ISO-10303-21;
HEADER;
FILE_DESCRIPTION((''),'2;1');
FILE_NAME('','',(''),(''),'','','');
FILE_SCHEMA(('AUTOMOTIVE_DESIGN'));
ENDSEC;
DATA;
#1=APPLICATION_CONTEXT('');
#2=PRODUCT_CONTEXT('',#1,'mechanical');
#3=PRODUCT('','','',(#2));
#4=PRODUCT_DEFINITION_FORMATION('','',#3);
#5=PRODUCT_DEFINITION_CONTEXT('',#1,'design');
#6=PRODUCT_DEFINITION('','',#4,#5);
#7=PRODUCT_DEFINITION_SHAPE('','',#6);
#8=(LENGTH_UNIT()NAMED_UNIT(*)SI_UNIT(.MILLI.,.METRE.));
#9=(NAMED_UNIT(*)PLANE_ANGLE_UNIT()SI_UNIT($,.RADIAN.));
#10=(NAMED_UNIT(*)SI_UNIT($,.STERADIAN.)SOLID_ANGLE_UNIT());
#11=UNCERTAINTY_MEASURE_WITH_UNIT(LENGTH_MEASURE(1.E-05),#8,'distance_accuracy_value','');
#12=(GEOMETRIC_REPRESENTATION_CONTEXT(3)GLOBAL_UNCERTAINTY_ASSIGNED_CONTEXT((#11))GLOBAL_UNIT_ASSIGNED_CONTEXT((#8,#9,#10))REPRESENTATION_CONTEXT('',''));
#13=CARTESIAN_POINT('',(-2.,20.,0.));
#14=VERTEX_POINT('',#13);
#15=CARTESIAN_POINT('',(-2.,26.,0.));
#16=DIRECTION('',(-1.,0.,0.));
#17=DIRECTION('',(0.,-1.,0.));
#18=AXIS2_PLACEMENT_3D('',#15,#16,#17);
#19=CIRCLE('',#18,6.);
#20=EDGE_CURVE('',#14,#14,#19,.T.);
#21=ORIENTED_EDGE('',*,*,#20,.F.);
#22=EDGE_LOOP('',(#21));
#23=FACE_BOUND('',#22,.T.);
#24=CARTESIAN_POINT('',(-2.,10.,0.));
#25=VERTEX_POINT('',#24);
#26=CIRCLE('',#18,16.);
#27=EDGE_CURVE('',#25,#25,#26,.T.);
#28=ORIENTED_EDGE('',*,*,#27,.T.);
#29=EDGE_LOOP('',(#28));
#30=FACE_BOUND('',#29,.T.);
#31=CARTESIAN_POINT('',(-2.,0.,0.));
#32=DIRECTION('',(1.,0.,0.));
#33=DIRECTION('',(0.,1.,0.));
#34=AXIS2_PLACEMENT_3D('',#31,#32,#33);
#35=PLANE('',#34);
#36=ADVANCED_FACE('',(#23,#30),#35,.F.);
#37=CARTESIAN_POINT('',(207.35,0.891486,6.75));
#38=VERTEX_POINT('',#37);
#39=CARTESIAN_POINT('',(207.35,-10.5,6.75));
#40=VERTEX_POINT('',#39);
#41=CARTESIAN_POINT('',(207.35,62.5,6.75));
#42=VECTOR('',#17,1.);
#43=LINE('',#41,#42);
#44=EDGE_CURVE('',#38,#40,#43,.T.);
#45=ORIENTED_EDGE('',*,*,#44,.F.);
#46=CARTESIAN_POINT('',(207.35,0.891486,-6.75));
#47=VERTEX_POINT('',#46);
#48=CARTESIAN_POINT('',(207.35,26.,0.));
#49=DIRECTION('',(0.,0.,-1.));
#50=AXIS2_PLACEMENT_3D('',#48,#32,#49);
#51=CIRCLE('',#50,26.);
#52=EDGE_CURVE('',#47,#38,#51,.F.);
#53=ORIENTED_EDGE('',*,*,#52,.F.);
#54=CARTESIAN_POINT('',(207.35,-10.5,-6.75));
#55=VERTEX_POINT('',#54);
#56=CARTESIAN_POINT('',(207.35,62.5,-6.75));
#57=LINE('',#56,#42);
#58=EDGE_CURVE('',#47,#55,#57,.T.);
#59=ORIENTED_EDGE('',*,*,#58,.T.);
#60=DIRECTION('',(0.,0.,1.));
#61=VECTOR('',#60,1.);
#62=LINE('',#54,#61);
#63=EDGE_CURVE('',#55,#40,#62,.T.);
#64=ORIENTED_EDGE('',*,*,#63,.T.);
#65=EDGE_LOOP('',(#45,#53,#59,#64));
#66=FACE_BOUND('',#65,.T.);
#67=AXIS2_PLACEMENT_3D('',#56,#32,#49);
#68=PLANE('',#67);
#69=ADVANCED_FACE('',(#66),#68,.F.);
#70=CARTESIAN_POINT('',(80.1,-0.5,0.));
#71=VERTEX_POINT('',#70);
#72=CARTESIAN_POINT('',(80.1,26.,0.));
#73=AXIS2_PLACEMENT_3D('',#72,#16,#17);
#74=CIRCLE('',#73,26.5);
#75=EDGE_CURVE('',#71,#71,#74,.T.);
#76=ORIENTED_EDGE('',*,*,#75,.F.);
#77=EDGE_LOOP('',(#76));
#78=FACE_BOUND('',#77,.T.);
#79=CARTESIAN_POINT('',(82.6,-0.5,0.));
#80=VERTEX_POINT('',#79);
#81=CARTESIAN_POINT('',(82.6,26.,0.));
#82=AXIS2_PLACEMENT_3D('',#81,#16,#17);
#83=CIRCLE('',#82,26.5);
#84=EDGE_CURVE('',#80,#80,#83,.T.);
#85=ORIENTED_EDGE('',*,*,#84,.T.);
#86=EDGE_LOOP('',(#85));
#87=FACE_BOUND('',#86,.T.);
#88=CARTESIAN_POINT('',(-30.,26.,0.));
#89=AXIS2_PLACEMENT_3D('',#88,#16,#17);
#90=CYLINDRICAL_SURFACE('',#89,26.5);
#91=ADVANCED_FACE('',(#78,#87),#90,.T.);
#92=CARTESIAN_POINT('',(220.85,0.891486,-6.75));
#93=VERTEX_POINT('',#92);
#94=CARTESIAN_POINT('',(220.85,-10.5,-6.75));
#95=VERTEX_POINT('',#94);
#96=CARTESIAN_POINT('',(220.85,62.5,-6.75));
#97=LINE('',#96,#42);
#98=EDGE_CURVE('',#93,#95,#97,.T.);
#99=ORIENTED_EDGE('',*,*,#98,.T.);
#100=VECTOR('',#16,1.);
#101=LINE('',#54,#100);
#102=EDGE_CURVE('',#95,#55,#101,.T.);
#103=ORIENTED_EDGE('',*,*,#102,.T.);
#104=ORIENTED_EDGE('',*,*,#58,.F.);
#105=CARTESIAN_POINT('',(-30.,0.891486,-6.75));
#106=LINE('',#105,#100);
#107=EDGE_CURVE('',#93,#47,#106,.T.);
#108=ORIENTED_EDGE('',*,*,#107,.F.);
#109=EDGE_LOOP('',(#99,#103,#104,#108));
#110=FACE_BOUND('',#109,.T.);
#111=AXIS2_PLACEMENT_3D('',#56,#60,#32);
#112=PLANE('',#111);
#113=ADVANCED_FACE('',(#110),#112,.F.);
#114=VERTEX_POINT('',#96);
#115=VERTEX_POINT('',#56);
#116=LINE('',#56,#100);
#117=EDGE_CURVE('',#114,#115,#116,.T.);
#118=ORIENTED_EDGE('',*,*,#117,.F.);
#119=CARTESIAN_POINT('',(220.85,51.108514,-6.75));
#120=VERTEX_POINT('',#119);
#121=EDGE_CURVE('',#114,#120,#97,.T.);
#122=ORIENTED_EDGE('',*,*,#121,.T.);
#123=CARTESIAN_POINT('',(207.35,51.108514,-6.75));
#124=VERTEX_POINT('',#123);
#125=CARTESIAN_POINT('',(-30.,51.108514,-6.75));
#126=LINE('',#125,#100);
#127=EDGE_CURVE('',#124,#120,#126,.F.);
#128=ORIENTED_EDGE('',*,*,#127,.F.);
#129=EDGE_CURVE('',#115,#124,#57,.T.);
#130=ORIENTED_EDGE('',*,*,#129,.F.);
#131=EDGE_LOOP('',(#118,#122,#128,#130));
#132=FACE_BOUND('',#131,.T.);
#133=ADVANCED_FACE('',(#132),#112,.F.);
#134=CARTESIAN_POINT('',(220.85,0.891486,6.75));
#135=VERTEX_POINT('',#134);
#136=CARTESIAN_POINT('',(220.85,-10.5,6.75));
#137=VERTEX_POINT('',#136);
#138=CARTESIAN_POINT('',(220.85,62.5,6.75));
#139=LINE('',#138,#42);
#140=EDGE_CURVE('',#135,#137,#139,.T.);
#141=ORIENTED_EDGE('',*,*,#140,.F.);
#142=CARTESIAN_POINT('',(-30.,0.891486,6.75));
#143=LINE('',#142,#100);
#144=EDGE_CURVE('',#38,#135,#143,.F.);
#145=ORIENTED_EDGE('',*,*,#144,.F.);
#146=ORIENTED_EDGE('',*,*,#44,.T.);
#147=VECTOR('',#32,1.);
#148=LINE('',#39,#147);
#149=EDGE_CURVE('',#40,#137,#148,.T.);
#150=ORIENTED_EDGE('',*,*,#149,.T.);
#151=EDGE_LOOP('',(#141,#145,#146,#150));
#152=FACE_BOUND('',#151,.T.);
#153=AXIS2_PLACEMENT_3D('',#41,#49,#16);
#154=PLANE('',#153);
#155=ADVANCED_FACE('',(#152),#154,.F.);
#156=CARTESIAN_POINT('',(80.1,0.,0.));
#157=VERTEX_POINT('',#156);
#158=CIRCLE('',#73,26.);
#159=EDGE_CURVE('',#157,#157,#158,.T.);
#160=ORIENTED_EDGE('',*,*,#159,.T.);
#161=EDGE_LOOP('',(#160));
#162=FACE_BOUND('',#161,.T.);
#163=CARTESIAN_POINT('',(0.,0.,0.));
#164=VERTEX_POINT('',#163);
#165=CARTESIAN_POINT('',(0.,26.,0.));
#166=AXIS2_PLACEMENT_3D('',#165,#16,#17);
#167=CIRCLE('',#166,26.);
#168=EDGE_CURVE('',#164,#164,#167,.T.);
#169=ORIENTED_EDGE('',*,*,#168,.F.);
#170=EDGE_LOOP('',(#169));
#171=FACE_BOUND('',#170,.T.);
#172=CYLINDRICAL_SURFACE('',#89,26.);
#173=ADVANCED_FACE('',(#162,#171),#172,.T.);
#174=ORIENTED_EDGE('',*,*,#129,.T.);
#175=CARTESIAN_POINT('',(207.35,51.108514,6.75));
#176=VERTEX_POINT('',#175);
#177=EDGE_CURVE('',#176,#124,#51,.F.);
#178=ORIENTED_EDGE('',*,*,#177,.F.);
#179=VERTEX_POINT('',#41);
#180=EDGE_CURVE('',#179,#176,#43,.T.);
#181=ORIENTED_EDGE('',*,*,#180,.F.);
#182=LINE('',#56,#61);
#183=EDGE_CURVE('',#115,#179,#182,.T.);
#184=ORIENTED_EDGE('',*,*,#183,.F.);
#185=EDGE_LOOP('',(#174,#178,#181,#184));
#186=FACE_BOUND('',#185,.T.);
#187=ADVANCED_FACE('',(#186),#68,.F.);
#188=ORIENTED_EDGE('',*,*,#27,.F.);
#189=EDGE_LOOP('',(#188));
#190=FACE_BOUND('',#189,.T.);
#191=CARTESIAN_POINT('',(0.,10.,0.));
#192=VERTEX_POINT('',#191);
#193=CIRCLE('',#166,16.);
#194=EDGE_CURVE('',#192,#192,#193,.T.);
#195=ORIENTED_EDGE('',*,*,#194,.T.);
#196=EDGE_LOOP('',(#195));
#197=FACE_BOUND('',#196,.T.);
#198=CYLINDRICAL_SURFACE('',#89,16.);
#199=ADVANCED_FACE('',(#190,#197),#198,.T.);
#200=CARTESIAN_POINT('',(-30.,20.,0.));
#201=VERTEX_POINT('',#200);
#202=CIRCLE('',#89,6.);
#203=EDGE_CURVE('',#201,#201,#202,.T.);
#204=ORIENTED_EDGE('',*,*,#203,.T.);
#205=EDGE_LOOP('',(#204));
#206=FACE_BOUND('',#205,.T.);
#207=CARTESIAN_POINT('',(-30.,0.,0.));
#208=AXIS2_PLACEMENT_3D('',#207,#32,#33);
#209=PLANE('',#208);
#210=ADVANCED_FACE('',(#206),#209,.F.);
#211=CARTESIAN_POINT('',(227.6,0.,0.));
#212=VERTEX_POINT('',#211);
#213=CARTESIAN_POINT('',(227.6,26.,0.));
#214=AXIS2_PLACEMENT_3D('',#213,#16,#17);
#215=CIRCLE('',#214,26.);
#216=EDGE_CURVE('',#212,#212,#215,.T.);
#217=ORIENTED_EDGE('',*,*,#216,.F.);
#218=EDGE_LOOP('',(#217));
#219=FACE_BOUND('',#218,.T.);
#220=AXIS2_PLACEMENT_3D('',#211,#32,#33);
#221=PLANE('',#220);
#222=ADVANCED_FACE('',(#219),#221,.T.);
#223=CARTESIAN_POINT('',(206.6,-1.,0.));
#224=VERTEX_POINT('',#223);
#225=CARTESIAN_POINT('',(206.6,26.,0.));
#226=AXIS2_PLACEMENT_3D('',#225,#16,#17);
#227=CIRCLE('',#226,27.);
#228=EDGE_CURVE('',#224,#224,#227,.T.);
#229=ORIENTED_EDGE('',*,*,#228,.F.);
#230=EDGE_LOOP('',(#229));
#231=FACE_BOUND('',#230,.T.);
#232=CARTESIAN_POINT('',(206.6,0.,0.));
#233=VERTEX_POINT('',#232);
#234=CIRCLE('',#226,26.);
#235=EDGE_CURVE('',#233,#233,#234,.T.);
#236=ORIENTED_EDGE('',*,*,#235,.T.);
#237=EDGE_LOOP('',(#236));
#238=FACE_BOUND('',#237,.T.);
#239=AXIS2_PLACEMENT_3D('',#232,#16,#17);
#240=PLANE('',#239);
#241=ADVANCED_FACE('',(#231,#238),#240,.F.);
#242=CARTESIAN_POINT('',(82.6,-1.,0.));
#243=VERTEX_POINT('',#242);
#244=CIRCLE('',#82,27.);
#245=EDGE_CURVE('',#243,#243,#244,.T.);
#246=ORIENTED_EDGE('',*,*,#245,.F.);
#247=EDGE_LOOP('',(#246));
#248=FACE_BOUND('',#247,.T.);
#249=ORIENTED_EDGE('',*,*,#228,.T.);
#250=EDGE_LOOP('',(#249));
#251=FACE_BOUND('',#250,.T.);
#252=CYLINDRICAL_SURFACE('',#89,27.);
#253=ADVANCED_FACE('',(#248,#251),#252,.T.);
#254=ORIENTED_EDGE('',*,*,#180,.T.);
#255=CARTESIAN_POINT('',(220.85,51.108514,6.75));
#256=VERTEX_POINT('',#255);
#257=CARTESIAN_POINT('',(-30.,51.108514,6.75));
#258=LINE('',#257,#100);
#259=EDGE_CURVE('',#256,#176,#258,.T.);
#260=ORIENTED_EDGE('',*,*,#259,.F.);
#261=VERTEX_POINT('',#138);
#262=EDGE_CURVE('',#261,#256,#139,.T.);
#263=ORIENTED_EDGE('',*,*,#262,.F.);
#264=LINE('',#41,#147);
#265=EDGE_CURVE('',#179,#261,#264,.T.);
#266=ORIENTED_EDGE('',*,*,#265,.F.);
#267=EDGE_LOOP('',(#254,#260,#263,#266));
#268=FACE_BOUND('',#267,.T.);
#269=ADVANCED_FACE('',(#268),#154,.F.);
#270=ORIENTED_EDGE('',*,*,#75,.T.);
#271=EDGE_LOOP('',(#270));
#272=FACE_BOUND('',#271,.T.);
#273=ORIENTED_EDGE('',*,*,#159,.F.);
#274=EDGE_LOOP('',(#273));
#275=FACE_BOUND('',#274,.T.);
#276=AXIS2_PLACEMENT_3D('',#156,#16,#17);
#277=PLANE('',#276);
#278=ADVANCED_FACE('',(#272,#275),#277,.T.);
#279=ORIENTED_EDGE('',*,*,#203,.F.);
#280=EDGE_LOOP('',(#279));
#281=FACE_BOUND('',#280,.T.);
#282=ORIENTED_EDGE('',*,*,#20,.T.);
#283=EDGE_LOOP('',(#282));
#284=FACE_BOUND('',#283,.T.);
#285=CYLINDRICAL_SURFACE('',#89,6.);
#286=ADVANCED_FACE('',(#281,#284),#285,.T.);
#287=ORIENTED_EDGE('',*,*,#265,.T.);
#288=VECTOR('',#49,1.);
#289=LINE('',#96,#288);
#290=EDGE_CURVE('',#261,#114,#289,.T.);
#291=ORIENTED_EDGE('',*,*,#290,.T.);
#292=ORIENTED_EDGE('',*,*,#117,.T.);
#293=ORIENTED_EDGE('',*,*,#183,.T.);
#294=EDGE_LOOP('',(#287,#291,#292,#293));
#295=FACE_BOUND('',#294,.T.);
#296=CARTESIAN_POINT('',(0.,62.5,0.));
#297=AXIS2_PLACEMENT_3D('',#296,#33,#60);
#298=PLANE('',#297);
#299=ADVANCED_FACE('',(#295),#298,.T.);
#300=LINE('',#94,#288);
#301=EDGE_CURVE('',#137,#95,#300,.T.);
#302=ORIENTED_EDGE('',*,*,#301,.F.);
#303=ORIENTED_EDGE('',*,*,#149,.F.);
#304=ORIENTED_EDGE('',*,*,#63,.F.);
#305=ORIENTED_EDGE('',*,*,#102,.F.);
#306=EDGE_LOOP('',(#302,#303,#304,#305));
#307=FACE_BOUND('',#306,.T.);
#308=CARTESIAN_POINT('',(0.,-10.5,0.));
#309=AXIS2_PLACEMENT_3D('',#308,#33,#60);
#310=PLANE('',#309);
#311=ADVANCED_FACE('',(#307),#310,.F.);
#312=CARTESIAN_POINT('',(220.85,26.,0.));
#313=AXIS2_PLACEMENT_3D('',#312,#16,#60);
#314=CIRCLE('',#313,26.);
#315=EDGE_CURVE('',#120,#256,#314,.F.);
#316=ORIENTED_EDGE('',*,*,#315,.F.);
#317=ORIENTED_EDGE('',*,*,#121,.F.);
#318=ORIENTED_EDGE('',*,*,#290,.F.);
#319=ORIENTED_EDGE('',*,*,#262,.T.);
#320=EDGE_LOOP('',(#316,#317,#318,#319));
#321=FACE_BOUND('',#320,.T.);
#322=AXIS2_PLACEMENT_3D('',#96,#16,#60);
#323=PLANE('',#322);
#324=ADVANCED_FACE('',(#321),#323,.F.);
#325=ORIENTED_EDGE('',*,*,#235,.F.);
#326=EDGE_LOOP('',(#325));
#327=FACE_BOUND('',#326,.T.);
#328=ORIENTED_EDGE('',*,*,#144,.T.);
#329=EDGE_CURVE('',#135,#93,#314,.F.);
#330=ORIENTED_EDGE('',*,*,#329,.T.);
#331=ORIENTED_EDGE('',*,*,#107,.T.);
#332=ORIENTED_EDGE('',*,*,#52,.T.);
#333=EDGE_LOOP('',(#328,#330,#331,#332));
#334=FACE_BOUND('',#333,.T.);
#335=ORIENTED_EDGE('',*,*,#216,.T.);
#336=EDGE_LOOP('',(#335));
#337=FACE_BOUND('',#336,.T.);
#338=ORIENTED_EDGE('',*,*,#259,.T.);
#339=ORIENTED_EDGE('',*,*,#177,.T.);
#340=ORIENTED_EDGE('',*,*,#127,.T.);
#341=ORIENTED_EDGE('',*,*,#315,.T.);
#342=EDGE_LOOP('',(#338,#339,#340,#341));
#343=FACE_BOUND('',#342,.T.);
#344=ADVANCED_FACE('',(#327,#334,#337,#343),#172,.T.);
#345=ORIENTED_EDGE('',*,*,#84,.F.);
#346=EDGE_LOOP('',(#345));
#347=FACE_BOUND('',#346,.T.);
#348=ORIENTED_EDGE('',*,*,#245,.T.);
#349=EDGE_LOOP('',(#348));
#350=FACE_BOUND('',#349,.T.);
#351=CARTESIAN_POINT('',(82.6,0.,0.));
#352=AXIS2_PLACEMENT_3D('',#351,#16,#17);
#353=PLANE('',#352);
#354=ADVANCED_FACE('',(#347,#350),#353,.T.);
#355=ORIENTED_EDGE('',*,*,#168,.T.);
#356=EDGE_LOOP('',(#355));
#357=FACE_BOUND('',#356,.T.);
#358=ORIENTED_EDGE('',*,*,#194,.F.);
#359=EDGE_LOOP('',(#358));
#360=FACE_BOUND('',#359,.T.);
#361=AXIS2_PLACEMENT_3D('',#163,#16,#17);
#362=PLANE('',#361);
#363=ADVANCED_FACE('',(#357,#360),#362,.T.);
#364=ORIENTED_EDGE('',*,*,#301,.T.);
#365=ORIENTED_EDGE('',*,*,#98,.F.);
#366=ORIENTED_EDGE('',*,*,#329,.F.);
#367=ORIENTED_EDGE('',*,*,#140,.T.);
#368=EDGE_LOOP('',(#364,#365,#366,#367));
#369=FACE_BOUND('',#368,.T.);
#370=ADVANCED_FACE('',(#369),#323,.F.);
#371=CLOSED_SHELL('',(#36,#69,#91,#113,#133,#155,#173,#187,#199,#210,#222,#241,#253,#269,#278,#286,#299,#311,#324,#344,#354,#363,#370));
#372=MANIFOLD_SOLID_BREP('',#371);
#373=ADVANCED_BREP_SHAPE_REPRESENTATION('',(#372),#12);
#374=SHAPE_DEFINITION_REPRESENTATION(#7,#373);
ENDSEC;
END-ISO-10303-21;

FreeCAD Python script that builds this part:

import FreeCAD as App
import Part
import Sketcher
from FreeCAD import Vector

doc = App.newDocument("Part")
body = doc.addObject("PartDesign::Body", "Body")

# Sketch on XY plane
sketch1 = body.newObject("Sketcher::SketchObject", "Sketch")
sketch1.AttachmentSupport = (doc.getObject("XY_Plane"), [""])
sketch1.MapMode = "FlatFace"
sketch1.addGeometry([
    Part.LineSegment(Vector(227.6, 26, 0), Vector(227.6, 52, 0)),  # 0
    Part.LineSegment(Vector(227.6, 52, 0), Vector(206.6, 52, 0)),  # 1
    Part.LineSegment(Vector(206.6, 52, 0), Vector(206.6, 53, 0)),  # 2
    Part.LineSegment(Vector(206.6, 53, 0), Vector(82.6, 53, 0)),  # 3
    Part.LineSegment(Vector(82.6, 53, 0), Vector(82.6, 52.5, 0)),  # 4
    Part.LineSegment(Vector(82.6, 52.5, 0), Vector(80.1, 52.5, 0)),  # 5
    Part.LineSegment(Vector(80.1, 52.5, 0), Vector(80.1, 52, 0)),  # 6
    Part.LineSegment(Vector(80.1, 52, 0), Vector(0, 52, 0)),  # 7
    Part.LineSegment(Vector(0, 52, 0), Vector(0, 42, 0)),  # 8
    Part.LineSegment(Vector(0, 42, 0), Vector(-2, 42, 0)),  # 9
    Part.LineSegment(Vector(-2, 42, 0), Vector(-2, 32, 0)),  # 10
    Part.LineSegment(Vector(-2, 32, 0), Vector(-30, 32, 0)),  # 11
    Part.LineSegment(Vector(-30, 32, 0), Vector(-30, 26, 0)),  # 12
    Part.LineSegment(Vector(-30, 26, 0), Vector(227.6, 26, 0)),  # 13
], False)
sketch1.addGeometry(Part.LineSegment(Vector(-30, 26, 0), Vector(227.6, 26, 0)), True)  # axis
sketch1.addConstraint([
    Sketcher.Constraint("Coincident", 0, 2, 1, 1),
    Sketcher.Constraint("Coincident", 1, 2, 2, 1),
    Sketcher.Constraint("Coincident", 2, 2, 3, 1),
    Sketcher.Constraint("Coincident", 3, 2, 4, 1),
    Sketcher.Constraint("Coincident", 4, 2, 5, 1),
    Sketcher.Constraint("Coincident", 5, 2, 6, 1),
    Sketcher.Constraint("Coincident", 6, 2, 7, 1),
    Sketcher.Constraint("Coincident", 7, 2, 8, 1),
    Sketcher.Constraint("Coincident", 8, 2, 9, 1),
    Sketcher.Constraint("Coincident", 9, 2, 10, 1),
    Sketcher.Constraint("Coincident", 10, 2, 11, 1),
    Sketcher.Constraint("Coincident", 11, 2, 12, 1),
    Sketcher.Constraint("Coincident", 12, 2, 13, 1),
    Sketcher.Constraint("Coincident", 13, 2, 0, 1),
    Sketcher.Constraint("Vertical", 0),
    Sketcher.Constraint("Horizontal", 1),
    Sketcher.Constraint("Vertical", 2),
    Sketcher.Constraint("Horizontal", 3),
    Sketcher.Constraint("Vertical", 4),
    Sketcher.Constraint("Horizontal", 5),
    Sketcher.Constraint("Vertical", 6),
    Sketcher.Constraint("Horizontal", 7),
    Sketcher.Constraint("Vertical", 8),
    Sketcher.Constraint("Horizontal", 9),
    Sketcher.Constraint("Vertical", 10),
    Sketcher.Constraint("Horizontal", 11),
    Sketcher.Constraint("Vertical", 12),
    Sketcher.Constraint("Horizontal", 13),
    Sketcher.Constraint("Horizontal", 14),
    Sketcher.Constraint("Coincident", 14, 1, 12, 2),
    Sketcher.Constraint("PointOnObject", 7, 2, -2),
    Sketcher.Constraint("Horizontal", 1, 2, 6, 2),
    Sketcher.Constraint("Vertical", 0, 2, 14, 2),
    Sketcher.Constraint("Equal", 4, 6),
    Sketcher.Constraint("Equal", 8, 10),
    Sketcher.Constraint("DistanceX", 1, 2, 1, 1, 21.0),
    Sketcher.Constraint("DistanceX", 3, 2, 3, 1, 124.0),
    Sketcher.Constraint("DistanceX", 9, 2, 9, 1, 2.0),
    Sketcher.Constraint("DistanceX", 11, 2, 11, 1, 28.0),
    Sketcher.Constraint("DistanceY", 0, 1, 0, 2, 26.0),
    Sketcher.Constraint("DistanceY", 2, 1, 2, 2, 1.0),
    Sketcher.Constraint("DistanceY", 8, 2, 8, 1, 10.0),
    Sketcher.Constraint("DistanceX", 5, 2, 5, 1, 2.5),
    Sketcher.Constraint("DistanceX", 7, 2, 7, 1, 80.1),
    Sketcher.Constraint("DistanceY", -1, 1, 0, 2, 52.0),
])
revolution = body.newObject("PartDesign::Revolution", "Revolution")
revolution.Profile = sketch1
revolution.ReferenceAxis = (sketch1, ["Axis0"])
revolution.Angle = 360

# Sketch on XZ plane
sketch2 = body.newObject("Sketcher::SketchObject", "Sketch001")
sketch2.AttachmentSupport = (doc.getObject("XZ_Plane"), [""])
sketch2.MapMode = "FlatFace"
sketch2.AttachmentOffset = App.Placement(Vector(0, 0, -26), App.Rotation())
sketch2.addGeometry([
    Part.LineSegment(Vector(207, -7, 0), Vector(207, 7, 0)),
    Part.LineSegment(Vector(207, 7, 0), Vector(221, 7, 0)),
    Part.LineSegment(Vector(221, 7, 0), Vector(221, -7, 0)),
    Part.LineSegment(Vector(221, -7, 0), Vector(207, -7, 0)),
], False)
sketch2.addConstraint([
    Sketcher.Constraint("Coincident", 0, 2, 1, 1),
    Sketcher.Constraint("Coincident", 1, 2, 2, 1),
    Sketcher.Constraint("Coincident", 2, 2, 3, 1),
    Sketcher.Constraint("Coincident", 3, 2, 0, 1),
    Sketcher.Constraint("Vertical", 0),
    Sketcher.Constraint("Horizontal", 1),
    Sketcher.Constraint("Vertical", 2),
    Sketcher.Constraint("Horizontal", 3),
    Sketcher.Constraint("Equal", 3, 0),
    Sketcher.Constraint("DistanceX", 1, 1, 1, 2, 13.5),
    Sketcher.Constraint("DistanceX", -1, 1, 0, 2, 207.35),
    Sketcher.Constraint("DistanceY", -1, 1, 0, 2, 6.75),
])
pad1 = body.newObject("PartDesign::Pad", "Pad")
pad1.Profile = sketch2
pad1.Length = 73
pad1.Midplane = True

doc.recompute()
